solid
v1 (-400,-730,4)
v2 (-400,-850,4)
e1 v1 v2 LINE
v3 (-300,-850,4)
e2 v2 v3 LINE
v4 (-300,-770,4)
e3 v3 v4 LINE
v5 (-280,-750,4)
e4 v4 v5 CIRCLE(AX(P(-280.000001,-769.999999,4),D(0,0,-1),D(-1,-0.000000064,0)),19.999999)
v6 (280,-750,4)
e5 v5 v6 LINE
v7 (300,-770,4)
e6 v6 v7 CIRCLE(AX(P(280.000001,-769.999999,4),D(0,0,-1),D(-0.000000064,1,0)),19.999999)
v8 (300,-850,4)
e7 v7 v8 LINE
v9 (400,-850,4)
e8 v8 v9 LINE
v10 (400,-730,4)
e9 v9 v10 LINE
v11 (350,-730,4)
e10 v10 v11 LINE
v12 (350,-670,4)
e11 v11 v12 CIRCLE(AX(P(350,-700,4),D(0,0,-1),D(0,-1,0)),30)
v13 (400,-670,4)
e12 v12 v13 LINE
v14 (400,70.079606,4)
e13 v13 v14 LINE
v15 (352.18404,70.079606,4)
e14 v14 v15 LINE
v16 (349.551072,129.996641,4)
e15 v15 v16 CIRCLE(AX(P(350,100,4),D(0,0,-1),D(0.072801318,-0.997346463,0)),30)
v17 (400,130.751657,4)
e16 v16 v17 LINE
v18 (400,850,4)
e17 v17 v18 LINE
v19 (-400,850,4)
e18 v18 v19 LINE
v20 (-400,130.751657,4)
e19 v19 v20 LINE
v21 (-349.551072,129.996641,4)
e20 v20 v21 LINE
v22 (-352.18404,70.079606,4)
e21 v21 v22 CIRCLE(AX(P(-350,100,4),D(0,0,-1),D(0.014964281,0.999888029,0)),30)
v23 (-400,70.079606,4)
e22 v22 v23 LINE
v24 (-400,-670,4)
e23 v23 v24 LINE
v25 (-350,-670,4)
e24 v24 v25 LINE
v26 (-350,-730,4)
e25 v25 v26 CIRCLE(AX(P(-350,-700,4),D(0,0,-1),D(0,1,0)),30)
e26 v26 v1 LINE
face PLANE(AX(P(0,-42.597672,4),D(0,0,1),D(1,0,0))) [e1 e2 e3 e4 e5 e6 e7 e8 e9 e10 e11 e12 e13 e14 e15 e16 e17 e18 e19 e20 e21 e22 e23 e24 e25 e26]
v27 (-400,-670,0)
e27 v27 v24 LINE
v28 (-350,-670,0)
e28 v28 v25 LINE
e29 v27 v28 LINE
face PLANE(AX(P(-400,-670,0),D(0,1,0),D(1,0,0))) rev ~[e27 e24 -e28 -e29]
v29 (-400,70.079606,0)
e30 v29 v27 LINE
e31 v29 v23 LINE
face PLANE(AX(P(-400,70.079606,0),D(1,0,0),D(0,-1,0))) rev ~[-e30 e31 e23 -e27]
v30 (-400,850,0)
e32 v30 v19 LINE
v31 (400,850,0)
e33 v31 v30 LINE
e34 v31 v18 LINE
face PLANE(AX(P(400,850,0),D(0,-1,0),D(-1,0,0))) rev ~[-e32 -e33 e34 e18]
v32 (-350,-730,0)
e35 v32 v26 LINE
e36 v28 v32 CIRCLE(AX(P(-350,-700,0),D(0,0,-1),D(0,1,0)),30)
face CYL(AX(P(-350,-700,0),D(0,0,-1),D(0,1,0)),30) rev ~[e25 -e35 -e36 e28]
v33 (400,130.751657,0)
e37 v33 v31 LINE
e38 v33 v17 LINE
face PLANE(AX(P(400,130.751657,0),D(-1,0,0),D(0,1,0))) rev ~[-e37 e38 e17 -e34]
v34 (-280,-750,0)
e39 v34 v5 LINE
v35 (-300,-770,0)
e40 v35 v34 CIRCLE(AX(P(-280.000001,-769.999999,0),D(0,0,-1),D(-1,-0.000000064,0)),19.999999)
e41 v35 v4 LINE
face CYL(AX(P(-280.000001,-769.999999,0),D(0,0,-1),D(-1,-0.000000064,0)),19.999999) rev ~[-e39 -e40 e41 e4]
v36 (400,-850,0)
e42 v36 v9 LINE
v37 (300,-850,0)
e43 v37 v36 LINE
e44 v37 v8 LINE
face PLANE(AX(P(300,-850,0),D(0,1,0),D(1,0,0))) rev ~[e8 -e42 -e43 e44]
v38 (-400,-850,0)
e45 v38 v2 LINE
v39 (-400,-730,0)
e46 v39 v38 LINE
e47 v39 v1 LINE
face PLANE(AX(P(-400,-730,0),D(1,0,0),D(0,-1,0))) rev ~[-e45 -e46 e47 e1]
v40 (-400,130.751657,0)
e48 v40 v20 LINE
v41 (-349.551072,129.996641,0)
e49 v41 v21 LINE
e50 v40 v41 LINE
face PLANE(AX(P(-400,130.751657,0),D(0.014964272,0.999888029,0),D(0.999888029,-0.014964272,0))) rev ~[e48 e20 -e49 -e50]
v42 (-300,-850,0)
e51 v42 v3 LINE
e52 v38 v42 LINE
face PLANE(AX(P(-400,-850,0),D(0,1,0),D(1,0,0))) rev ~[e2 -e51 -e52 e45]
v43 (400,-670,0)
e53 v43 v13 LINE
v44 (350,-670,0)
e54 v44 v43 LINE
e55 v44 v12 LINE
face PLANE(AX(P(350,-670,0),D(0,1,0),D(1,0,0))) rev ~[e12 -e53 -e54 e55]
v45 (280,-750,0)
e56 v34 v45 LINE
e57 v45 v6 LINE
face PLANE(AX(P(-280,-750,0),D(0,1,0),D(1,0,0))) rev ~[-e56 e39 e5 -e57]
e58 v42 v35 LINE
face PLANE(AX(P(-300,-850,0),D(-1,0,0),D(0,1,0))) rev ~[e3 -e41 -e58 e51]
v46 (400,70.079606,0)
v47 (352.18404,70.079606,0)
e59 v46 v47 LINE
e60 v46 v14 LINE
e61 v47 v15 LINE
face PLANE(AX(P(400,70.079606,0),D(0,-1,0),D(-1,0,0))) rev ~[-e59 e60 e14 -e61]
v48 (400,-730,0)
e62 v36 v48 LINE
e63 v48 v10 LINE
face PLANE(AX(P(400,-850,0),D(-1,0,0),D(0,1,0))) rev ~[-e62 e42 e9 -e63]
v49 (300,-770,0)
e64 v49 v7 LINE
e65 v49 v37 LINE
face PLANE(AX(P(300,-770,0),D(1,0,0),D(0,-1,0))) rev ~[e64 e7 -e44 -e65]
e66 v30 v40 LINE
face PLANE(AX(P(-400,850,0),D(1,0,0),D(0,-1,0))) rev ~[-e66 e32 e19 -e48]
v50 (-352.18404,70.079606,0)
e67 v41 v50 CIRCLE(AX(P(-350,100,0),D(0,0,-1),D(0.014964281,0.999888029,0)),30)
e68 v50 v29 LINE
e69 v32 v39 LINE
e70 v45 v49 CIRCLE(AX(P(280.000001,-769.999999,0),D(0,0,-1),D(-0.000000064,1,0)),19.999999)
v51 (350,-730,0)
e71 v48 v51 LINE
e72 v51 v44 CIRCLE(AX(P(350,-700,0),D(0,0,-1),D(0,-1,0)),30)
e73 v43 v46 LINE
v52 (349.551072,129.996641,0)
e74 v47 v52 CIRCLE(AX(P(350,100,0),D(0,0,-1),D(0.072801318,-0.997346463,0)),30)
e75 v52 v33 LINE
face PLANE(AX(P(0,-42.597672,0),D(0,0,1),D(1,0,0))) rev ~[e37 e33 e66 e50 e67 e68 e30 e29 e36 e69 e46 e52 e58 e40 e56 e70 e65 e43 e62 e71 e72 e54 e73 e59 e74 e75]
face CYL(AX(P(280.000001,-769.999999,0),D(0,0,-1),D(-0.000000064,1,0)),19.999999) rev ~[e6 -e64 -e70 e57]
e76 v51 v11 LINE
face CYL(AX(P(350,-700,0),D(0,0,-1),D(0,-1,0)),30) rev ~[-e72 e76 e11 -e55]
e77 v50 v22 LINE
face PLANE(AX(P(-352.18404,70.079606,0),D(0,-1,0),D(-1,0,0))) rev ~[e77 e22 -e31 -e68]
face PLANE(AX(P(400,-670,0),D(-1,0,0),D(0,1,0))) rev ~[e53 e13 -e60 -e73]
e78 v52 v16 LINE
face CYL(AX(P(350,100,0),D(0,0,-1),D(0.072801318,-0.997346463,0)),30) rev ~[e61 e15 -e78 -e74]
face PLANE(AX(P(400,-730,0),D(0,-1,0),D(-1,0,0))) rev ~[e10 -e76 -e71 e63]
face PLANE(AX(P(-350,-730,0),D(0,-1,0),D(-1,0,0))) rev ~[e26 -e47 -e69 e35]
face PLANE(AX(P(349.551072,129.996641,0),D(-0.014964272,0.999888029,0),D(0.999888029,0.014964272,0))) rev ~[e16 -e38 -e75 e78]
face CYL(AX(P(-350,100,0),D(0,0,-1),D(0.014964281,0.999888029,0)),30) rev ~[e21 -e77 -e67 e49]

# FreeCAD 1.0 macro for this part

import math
import FreeCAD as App
import Part
import Sketcher

V = App.Vector
Q = App.Units.Quantity

doc = App.newDocument("Part")
params = doc.addObject("Spreadsheet::Sheet", "Params")
for row, (alias, value) in enumerate([
    ("sketch1_radius", "30 mm"),
    ("sketch1_radius2", "19.999999 mm"),
    ("sketch1_width", "100 mm"),
    ("sketch1_width2", "50 mm"),
    ("sketch1_width3", "800 mm"),
    ("pad1_length", "4 mm"),
], start=1):
    params.set(f"A{row}", alias)
    params.set(f"B{row}", "=" + value)
    params.setAlias(f"B{row}", alias)

body = doc.addObject("PartDesign::Body", "Body")

sketch1 = body.newObject("Sketcher::SketchObject", "Sketch")
sketch1.AttachmentSupport = (doc.getObject("XY_Plane"), [""])
sketch1.MapMode = "FlatFace"
sketch1.addGeometry([
    Part.LineSegment(V(300, -850, 0), V(400, -850, 0)),
    Part.LineSegment(V(400, -850, 0), V(400, -730, 0)),
    Part.LineSegment(V(400, -730, 0), V(350, -730, 0)),
    Part.ArcOfCircle(Part.Circle(V(350, -700, 0), V(0, 0, 1), 30), math.radians(90), math.radians(270)),
    Part.LineSegment(V(350, -670, 0), V(400, -670, 0)),
    Part.LineSegment(V(400, -670, 0), V(400, 70, 0)),
    Part.LineSegment(V(400, 70, 0), V(352, 70, 0)),
    Part.ArcOfCircle(Part.Circle(V(350, 100, 0), V(0, 0, 1), 30), math.radians(91), math.radians(274)),
    Part.LineSegment(V(350, 130, 0), V(400, 131, 0)),
    Part.LineSegment(V(400, 131, 0), V(400, 850, 0)),
    Part.LineSegment(V(400, 850, 0), V(-400, 850, 0)),
    Part.LineSegment(V(-400, 850, 0), V(-400, 131, 0)),
    Part.LineSegment(V(-400, 131, 0), V(-350, 130, 0)),
    Part.ArcOfCircle(Part.Circle(V(-350, 100, 0), V(0, 0, 1), 30), math.radians(-94), math.radians(89)),
    Part.LineSegment(V(-352, 70, 0), V(-400, 70, 0)),
    Part.LineSegment(V(-400, 70, 0), V(-400, -670, 0)),
    Part.LineSegment(V(-400, -670, 0), V(-350, -670, 0)),
    Part.ArcOfCircle(Part.Circle(V(-350, -700, 0), V(0, 0, 1), 30), math.radians(-90), math.radians(90)),
    Part.LineSegment(V(-350, -730, 0), V(-400, -730, 0)),
    Part.LineSegment(V(-400, -730, 0), V(-400, -850, 0)),
    Part.LineSegment(V(-400, -850, 0), V(-300, -850, 0)),
    Part.LineSegment(V(-300, -850, 0), V(-300, -770, 0)),
    Part.ArcOfCircle(Part.Circle(V(-280, -770, 0), V(0, 0, 1), 20), math.radians(90), math.radians(180)),
    Part.LineSegment(V(-280, -750, 0), V(280, -750, 0)),
    Part.ArcOfCircle(Part.Circle(V(280, -770, 0), V(0, 0, 1), 20), math.radians(0), math.radians(90)),
    Part.LineSegment(V(300, -770, 0), V(300, -850, 0)),
], False)
sketch1.addConstraint([
    Sketcher.Constraint("Coincident", 0, 2, 1, 1),
    Sketcher.Constraint("Coincident", 1, 2, 2, 1),
    Sketcher.Constraint("Tangent", 2, 2, 3, 2),
    Sketcher.Constraint("Tangent", 3, 1, 4, 1),
    Sketcher.Constraint("Coincident", 4, 2, 5, 1),
    Sketcher.Constraint("Coincident", 5, 2, 6, 1),
    Sketcher.Constraint("Coincident", 6, 2, 7, 2),
    Sketcher.Constraint("Tangent", 7, 1, 8, 1),
    Sketcher.Constraint("Coincident", 8, 2, 9, 1),
    Sketcher.Constraint("Coincident", 9, 2, 10, 1),
    Sketcher.Constraint("Coincident", 10, 2, 11, 1),
    Sketcher.Constraint("Coincident", 11, 2, 12, 1),
    Sketcher.Constraint("Tangent", 12, 2, 13, 2),
    Sketcher.Constraint("Coincident", 13, 1, 14, 1),
    Sketcher.Constraint("Coincident", 14, 2, 15, 1),
    Sketcher.Constraint("Coincident", 15, 2, 16, 1),
    Sketcher.Constraint("Tangent", 16, 2, 17, 2),
    Sketcher.Constraint("Tangent", 17, 1, 18, 1),
    Sketcher.Constraint("Coincident", 18, 2, 19, 1),
    Sketcher.Constraint("Coincident", 19, 2, 20, 1),
    Sketcher.Constraint("Coincident", 20, 2, 21, 1),
    Sketcher.Constraint("Tangent", 21, 2, 22, 2),
    Sketcher.Constraint("Tangent", 22, 1, 23, 1),
    Sketcher.Constraint("Tangent", 23, 2, 24, 2),
    Sketcher.Constraint("Tangent", 24, 1, 25, 1),
    Sketcher.Constraint("Coincident", 25, 2, 0, 1),
    Sketcher.Constraint("Horizontal", 0),
    Sketcher.Constraint("Vertical", 1),
    Sketcher.Constraint("Horizontal", 2),
    Sketcher.Constraint("Horizontal", 4),
    Sketcher.Constraint("Vertical", 5),
    Sketcher.Constraint("Horizontal", 6),
    Sketcher.Constraint("Vertical", 9),
    Sketcher.Constraint("Horizontal", 10),
    Sketcher.Constraint("Vertical", 11),
    Sketcher.Constraint("Horizontal", 14),
    Sketcher.Constraint("Vertical", 15),
    Sketcher.Constraint("Horizontal", 16),
    Sketcher.Constraint("Horizontal", 18),
    Sketcher.Constraint("Vertical", 19),
    Sketcher.Constraint("Horizontal", 20),
    Sketcher.Constraint("Vertical", 21),
    Sketcher.Constraint("Horizontal", 23),
    Sketcher.Constraint("Vertical", 25),
    Sketcher.Constraint("Equal", 3, 7),
    Sketcher.Constraint("Equal", 7, 13),
    Sketcher.Constraint("Equal", 13, 17),
    Sketcher.Constraint("Equal", 22, 24),
    Sketcher.Constraint("Symmetric", 0, 2, 10, 2, -1, 1),
    Sketcher.Constraint("Symmetric", 9, 2, 19, 2, -1, 1),
    Sketcher.Constraint("Symmetric", 7, 3, 13, 3, -2),
    Sketcher.Constraint("Symmetric", 3, 3, 17, 3, -2),
    Sketcher.Constraint("Symmetric", 8, 2, 11, 2, -2),
    Sketcher.Constraint("Symmetric", 5, 2, 14, 2, -2),
    Sketcher.Constraint("Vertical", 3, 3, 7, 3),
    Sketcher.Constraint("Vertical", 1, 2, 4, 2),
    Sketcher.Constraint("Equal", 0, 20),
    Sketcher.Constraint("Radius", 3, Q("30 mm")),
    Sketcher.Constraint("Radius", 22, Q("19.999999 mm")),
    Sketcher.Constraint("DistanceX", 0, 1, 0, 2, Q("100 mm")),
    Sketcher.Constraint("DistanceX", 2, 2, 2, 1, Q("50 mm")),
    Sketcher.Constraint("DistanceX", 10, 2, 10, 1, Q("800 mm")),
    Sketcher.Constraint("DistanceY", 1, 1, 1, 2, Q("120 mm")),
    Sketcher.Constraint("DistanceY", 21, 1, 21, 2, Q("80 mm")),
    Sketcher.Constraint("DistanceY", 3, 3, -1, 1, Q("700 mm")),
    Sketcher.Constraint("DistanceY", -1, 1, 7, 3, Q("100 mm")),
    Sketcher.Constraint("DistanceX", 6, 2, 6, 1, Q("47.81596 mm")),
    Sketcher.Constraint("DistanceY", 9, 1, 9, 2, Q("719.248343 mm")),
])
sketch1.setExpression("Constraints[57]", "Params.sketch1_radius")
sketch1.setExpression("Constraints[58]", "Params.sketch1_radius2")
sketch1.setExpression("Constraints[59]", "Params.sketch1_width")
sketch1.setExpression("Constraints[60]", "Params.sketch1_width2")
sketch1.setExpression("Constraints[61]", "Params.sketch1_width3")
pad1 = body.newObject("PartDesign::Pad", "Pad")
pad1.Profile = sketch1
pad1.setExpression("Length", "Params.pad1_length")

doc.recompute()
